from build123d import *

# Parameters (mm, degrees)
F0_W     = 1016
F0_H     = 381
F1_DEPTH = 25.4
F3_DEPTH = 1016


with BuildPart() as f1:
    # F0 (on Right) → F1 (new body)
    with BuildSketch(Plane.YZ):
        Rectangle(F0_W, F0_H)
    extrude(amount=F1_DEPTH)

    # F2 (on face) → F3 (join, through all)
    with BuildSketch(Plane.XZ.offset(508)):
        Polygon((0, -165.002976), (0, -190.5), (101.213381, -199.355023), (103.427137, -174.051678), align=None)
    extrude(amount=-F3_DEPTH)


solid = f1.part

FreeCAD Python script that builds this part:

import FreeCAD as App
import Part
import Sketcher
from FreeCAD import Vector
Q = App.Units.Quantity

doc = App.newDocument("Part")
body = doc.addObject("PartDesign::Body", "Body")

# Sketch on YZ plane
sketch1 = doc.addObject("Sketcher::SketchObject", "Sketch")
body.addObject(sketch1)
sketch1.AttachmentSupport = (doc.YZ_Plane, [""])
sketch1.MapMode = "FlatFace"
sketch1.addGeometry([
    Part.LineSegment(Vector(-508, 190, 0), Vector(-508, -190, 0)),
    Part.LineSegment(Vector(-508, -190, 0), Vector(508, -190, 0)),
    Part.LineSegment(Vector(508, -190, 0), Vector(508, 190, 0)),
    Part.LineSegment(Vector(508, 190, 0), Vector(-508, 190, 0)),
], False)
sketch1.addConstraint([
    Sketcher.Constraint("Coincident", 0, 2, 1, 1),
    Sketcher.Constraint("Coincident", 1, 2, 2, 1),
    Sketcher.Constraint("Coincident", 2, 2, 3, 1),
    Sketcher.Constraint("Coincident", 3, 2, 0, 1),
    Sketcher.Constraint("Vertical", 0),
    Sketcher.Constraint("Horizontal", 1),
    Sketcher.Constraint("Vertical", 2),
    Sketcher.Constraint("Horizontal", 3),
    Sketcher.Constraint("Symmetric", 0, 2, 2, 2, -1, 1),
    Sketcher.Constraint("DistanceX", 1, 1, 1, 2, Q("40 in")),
    Sketcher.Constraint("DistanceY", 0, 2, 0, 1, Q("15 in")),
])
pad1 = doc.addObject("PartDesign::Pad", "Pad")
body.addObject(pad1)
pad1.Profile = sketch1
pad1.Length = Q("1 in")

# Sketch on XZ plane
sketch2 = doc.addObject("Sketcher::SketchObject", "Sketch001")
body.addObject(sketch2)
sketch2.AttachmentSupport = (doc.XZ_Plane, [""])
sketch2.MapMode = "FlatFace"
sketch2.AttachmentOffset = App.Placement(Vector(0, 0, 20 * 25.4), App.Rotation())
sketch2.addGeometry([
    Part.LineSegment(Vector(0, -165, 0), Vector(0, -190, 0)),
    Part.LineSegment(Vector(0, -190, 0), Vector(101, -199, 0)),
    Part.LineSegment(Vector(101, -199, 0), Vector(103, -174, 0)),
    Part.LineSegment(Vector(103, -174, 0), Vector(0, -165, 0)),
], False)
sketch2.addConstraint([
    Sketcher.Constraint("Coincident", 0, 2, 1, 1),
    Sketcher.Constraint("Coincident", 1, 2, 2, 1),
    Sketcher.Constraint("Coincident", 2, 2, 3, 1),
    Sketcher.Constraint("Coincident", 3, 2, 0, 1),
    Sketcher.Constraint("Vertical", 0),
    Sketcher.Constraint("PointOnObject", 0, 2, -2),
    Sketcher.Constraint("Perpendicular", 1, 2),
    Sketcher.Constraint("Perpendicular", 2, 3),
    Sketcher.Constraint("Distance", 1, Q("4 in")),
    Sketcher.Constraint("Distance", 2, Q("1 in")),
    Sketcher.Constraint("Angle", 1, Q("-5 deg")),
    Sketcher.Constraint("DistanceY", 0, 2, -1, 1, Q("7.5 in")),
])
pad2 = doc.addObject("PartDesign::Pad", "Pad001")
body.addObject(pad2)
pad2.Profile = sketch2
pad2.Length = Q("40 in")
pad2.Reversed = True

doc.recompute()
